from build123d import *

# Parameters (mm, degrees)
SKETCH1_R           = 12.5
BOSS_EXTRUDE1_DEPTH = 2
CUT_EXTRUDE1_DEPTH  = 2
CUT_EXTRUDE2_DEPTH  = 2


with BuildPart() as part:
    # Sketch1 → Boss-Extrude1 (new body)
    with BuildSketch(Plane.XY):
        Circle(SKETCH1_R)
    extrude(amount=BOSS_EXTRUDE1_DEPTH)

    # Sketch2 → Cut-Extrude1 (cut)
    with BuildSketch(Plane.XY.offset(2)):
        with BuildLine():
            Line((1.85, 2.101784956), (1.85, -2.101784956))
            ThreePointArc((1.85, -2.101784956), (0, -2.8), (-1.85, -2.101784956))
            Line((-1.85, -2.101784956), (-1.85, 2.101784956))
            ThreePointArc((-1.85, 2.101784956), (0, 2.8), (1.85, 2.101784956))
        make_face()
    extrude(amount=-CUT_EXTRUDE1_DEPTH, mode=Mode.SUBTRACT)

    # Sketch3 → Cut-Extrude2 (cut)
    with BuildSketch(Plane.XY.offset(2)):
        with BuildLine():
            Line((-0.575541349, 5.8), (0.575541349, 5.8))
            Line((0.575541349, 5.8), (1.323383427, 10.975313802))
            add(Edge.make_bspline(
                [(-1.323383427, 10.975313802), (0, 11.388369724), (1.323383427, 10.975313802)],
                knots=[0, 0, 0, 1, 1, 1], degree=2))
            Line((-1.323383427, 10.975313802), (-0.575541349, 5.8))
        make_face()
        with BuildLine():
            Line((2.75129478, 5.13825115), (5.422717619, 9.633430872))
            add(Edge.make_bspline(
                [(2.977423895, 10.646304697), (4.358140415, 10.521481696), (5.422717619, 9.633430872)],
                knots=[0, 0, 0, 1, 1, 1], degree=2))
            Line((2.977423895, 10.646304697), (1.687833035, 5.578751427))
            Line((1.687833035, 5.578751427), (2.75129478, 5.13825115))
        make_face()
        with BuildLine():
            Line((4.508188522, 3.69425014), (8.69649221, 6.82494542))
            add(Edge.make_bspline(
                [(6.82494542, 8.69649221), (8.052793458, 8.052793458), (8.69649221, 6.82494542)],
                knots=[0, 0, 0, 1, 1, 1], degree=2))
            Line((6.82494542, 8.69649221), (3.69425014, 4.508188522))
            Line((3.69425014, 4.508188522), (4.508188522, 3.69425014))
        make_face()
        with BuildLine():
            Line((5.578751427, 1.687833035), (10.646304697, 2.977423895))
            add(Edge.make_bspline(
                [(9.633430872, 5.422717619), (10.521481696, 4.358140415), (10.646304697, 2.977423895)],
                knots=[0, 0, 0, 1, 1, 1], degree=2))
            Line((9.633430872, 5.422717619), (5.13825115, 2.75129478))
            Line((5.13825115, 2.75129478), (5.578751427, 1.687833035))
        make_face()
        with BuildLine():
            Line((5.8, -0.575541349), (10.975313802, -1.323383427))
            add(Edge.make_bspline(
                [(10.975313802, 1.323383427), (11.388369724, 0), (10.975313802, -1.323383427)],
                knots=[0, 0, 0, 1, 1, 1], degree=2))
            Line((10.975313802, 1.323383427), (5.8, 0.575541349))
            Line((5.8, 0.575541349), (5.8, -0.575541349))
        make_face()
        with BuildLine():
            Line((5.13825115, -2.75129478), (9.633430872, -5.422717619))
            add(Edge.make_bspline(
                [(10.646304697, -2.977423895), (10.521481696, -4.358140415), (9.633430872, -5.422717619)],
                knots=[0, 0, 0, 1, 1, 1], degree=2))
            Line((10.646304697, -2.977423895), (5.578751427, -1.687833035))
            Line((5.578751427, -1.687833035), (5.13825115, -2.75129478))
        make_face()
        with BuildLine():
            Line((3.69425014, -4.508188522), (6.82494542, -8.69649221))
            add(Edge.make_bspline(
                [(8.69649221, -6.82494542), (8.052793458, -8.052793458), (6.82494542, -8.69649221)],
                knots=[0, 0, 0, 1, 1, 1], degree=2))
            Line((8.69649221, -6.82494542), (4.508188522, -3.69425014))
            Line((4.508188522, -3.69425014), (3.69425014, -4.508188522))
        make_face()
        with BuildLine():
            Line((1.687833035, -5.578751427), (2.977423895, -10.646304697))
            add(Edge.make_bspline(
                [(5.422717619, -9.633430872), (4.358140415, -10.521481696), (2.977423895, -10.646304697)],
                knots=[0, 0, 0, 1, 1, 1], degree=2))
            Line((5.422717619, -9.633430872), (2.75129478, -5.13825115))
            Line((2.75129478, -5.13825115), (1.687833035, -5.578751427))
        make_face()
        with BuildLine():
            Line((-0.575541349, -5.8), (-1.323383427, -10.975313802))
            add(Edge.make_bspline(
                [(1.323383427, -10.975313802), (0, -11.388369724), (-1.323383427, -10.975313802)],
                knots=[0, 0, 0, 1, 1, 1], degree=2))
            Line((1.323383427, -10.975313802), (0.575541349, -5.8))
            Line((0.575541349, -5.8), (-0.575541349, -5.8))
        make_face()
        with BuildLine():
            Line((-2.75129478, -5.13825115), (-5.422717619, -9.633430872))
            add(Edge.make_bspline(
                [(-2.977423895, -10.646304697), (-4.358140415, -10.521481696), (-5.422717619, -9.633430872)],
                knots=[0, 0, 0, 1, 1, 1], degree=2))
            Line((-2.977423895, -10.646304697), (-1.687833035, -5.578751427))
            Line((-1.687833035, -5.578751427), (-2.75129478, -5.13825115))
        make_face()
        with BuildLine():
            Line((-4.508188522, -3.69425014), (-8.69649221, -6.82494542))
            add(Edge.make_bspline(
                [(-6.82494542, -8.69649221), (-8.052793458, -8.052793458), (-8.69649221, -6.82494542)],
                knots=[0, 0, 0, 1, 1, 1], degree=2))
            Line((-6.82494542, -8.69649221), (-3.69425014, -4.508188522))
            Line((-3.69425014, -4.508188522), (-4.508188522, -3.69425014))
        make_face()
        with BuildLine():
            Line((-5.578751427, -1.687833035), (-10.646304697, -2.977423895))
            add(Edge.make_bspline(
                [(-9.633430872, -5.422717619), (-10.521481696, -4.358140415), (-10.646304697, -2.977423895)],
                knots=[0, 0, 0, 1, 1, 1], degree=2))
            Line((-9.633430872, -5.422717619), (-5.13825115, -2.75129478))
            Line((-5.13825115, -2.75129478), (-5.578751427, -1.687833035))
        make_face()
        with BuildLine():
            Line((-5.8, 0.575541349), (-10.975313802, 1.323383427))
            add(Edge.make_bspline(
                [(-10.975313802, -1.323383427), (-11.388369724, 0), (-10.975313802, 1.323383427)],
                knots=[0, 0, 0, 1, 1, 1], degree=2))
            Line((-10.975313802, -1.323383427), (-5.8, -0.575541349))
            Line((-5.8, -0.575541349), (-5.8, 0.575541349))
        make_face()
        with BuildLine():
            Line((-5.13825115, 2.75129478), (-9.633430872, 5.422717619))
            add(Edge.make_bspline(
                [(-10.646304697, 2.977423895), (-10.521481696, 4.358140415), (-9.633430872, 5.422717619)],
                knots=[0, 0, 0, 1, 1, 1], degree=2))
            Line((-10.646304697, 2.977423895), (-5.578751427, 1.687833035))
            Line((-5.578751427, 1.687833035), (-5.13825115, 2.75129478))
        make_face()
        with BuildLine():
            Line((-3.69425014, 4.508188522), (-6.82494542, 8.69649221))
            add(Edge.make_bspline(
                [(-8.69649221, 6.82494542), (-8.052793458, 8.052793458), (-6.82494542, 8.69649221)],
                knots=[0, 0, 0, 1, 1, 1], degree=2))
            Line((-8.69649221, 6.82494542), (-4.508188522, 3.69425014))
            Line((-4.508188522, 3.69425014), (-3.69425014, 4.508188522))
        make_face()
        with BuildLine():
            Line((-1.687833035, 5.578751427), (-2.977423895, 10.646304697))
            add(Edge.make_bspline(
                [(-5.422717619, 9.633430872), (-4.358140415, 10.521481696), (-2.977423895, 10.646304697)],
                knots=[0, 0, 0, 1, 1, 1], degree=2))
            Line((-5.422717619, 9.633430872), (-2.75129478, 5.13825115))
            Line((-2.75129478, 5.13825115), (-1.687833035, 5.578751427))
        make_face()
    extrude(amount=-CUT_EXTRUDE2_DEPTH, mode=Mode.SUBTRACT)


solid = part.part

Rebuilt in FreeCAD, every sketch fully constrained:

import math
import FreeCAD as App
import Part
import Sketcher
from FreeCAD import Vector

doc = App.newDocument("Part")
body = doc.addObject("PartDesign::Body", "Body")

# Sketch on XY plane
sketch1 = doc.addObject("Sketcher::SketchObject", "Sketch")
body.addObject(sketch1)
sketch1.AttachmentSupport = (doc.XY_Plane, [""])
sketch1.MapMode = "FlatFace"
sketch1.addGeometry(Part.Circle(Vector(0, 0, 0), Vector(0, 0, 1), 12), False)
sketch1.addConstraint([
    Sketcher.Constraint("Coincident", 0, 3, -1, 1),
    Sketcher.Constraint("Diameter", 0, 25.0),
])
pad1 = doc.addObject("PartDesign::Pad", "Pad")
body.addObject(pad1)
pad1.Profile = sketch1
pad1.Length = 2

# Sketch on XY plane
sketch2 = doc.addObject("Sketcher::SketchObject", "Sketch001")
body.addObject(sketch2)
sketch2.AttachmentSupport = (doc.XY_Plane, [""])
sketch2.MapMode = "FlatFace"
sketch2.AttachmentOffset = App.Placement(Vector(0, 0, 2), App.Rotation())
sketch2.addGeometry([
    Part.LineSegment(Vector(1.9, -2.1, 0), Vector(1.9, 2.1, 0)),
    Part.ArcOfCircle(Part.Circle(Vector(0, 0, 0), Vector(0, 0, 1), 2.8), math.radians(49), math.radians(131)),
    Part.LineSegment(Vector(-1.9, 2.1, 0), Vector(-1.9, -2.1, 0)),
    Part.ArcOfCircle(Part.Circle(Vector(0, 0, 0), Vector(0, 0, 1), 2.8), math.radians(-131), math.radians(-49)),
], False)
sketch2.addConstraint([
    Sketcher.Constraint("Coincident", 0, 2, 1, 1),
    Sketcher.Constraint("Coincident", 1, 2, 2, 1),
    Sketcher.Constraint("Coincident", 2, 2, 3, 1),
    Sketcher.Constraint("Coincident", 3, 2, 0, 1),
    Sketcher.Constraint("Vertical", 0),
    Sketcher.Constraint("Vertical", 2),
    Sketcher.Constraint("Coincident", 1, 3, -1, 1),
    Sketcher.Constraint("Coincident", 3, 3, -1, 1),
    Sketcher.Constraint("Equal", 1, 3),
    Sketcher.Constraint("Horizontal", 0, 2, 1, 2),
    Sketcher.Constraint("Radius", 1, 2.8),
    Sketcher.Constraint("DistanceX", 1, 2, 0, 2, 3.7),
])
pocket1 = doc.addObject("PartDesign::Pocket", "Pocket")
body.addObject(pocket1)
pocket1.Profile = sketch2
pocket1.Length = 2

# Sketch on XY plane
sketch3 = doc.addObject("Sketcher::SketchObject", "Sketch002")
body.addObject(sketch3)
sketch3.AttachmentSupport = (doc.XY_Plane, [""])
sketch3.MapMode = "FlatFace"
sketch3.AttachmentOffset = App.Placement(Vector(0, 0, 2), App.Rotation())
sketch3.addGeometry([
    Part.LineSegment(Vector(-0.575541, 5.8, 0), Vector(0.575541, 5.8, 0)),  # 0
    Part.LineSegment(Vector(0.575541, 5.8, 0), Vector(1.323383, 10.975314, 0)),  # 1
    Part.BSplineCurve([Vector(-1.323383, 10.975314, 0), Vector(0, 11.38837, 0), Vector(1.323383, 10.975314, 0)], [3, 3], [0, 1], False, 2, [1, 1, 1], False),  # 2
    Part.LineSegment(Vector(-1.323383, 10.975314, 0), Vector(-0.575541, 5.8, 0)),  # 3
    Part.LineSegment(Vector(2.751295, 5.138251, 0), Vector(5.422718, 9.633431, 0)),  # 4
    Part.BSplineCurve([Vector(2.977424, 10.646305, 0), Vector(4.35814, 10.521482, 0), Vector(5.422718, 9.633431, 0)], [3, 3], [0, 1], False, 2, [1, 1, 1], False),  # 5
    Part.LineSegment(Vector(2.977424, 10.646305, 0), Vector(1.687833, 5.578751, 0)),  # 6
    Part.LineSegment(Vector(1.687833, 5.578751, 0), Vector(2.751295, 5.138251, 0)),  # 7
    Part.LineSegment(Vector(4.508189, 3.69425, 0), Vector(8.696492, 6.824945, 0)),  # 8
    Part.BSplineCurve([Vector(6.824945, 8.696492, 0), Vector(8.052793, 8.052793, 0), Vector(8.696492, 6.824945, 0)], [3, 3], [0, 1], False, 2, [1, 1, 1], False),  # 9
    Part.LineSegment(Vector(6.824945, 8.696492, 0), Vector(3.69425, 4.508189, 0)),  # 10
    Part.LineSegment(Vector(3.69425, 4.508189, 0), Vector(4.508189, 3.69425, 0)),  # 11
    Part.LineSegment(Vector(5.578751, 1.687833, 0), Vector(10.646305, 2.977424, 0)),  # 12
    Part.BSplineCurve([Vector(9.633431, 5.422718, 0), Vector(10.521482, 4.35814, 0), Vector(10.646305, 2.977424, 0)], [3, 3], [0, 1], False, 2, [1, 1, 1], False),  # 13
    Part.LineSegment(Vector(9.633431, 5.422718, 0), Vector(5.138251, 2.751295, 0)),  # 14
    Part.LineSegment(Vector(5.138251, 2.751295, 0), Vector(5.578751, 1.687833, 0)),  # 15
    Part.LineSegment(Vector(5.8, -0.575541, 0), Vector(10.975314, -1.323383, 0)),  # 16
    Part.BSplineCurve([Vector(10.975314, 1.323383, 0), Vector(11.38837, 0, 0), Vector(10.975314, -1.323383, 0)], [3, 3], [0, 1], False, 2, [1, 1, 1], False),  # 17
    Part.LineSegment(Vector(10.975314, 1.323383, 0), Vector(5.8, 0.575541, 0)),  # 18
    Part.LineSegment(Vector(5.8, 0.575541, 0), Vector(5.8, -0.575541, 0)),  # 19
    Part.LineSegment(Vector(5.138251, -2.751295, 0), Vector(9.633431, -5.422718, 0)),  # 20
    Part.BSplineCurve([Vector(10.646305, -2.977424, 0), Vector(10.521482, -4.35814, 0), Vector(9.633431, -5.422718, 0)], [3, 3], [0, 1], False, 2, [1, 1, 1], False),  # 21
    Part.LineSegment(Vector(10.646305, -2.977424, 0), Vector(5.578751, -1.687833, 0)),  # 22
    Part.LineSegment(Vector(5.578751, -1.687833, 0), Vector(5.138251, -2.751295, 0)),  # 23
    Part.LineSegment(Vector(3.69425, -4.508189, 0), Vector(6.824945, -8.696492, 0)),  # 24
    Part.BSplineCurve([Vector(8.696492, -6.824945, 0), Vector(8.052793, -8.052793, 0), Vector(6.824945, -8.696492, 0)], [3, 3], [0, 1], False, 2, [1, 1, 1], False),  # 25
    Part.LineSegment(Vector(8.696492, -6.824945, 0), Vector(4.508189, -3.69425, 0)),  # 26
    Part.LineSegment(Vector(4.508189, -3.69425, 0), Vector(3.69425, -4.508189, 0)),  # 27
    Part.LineSegment(Vector(1.687833, -5.578751, 0), Vector(2.977424, -10.646305, 0)),  # 28
    Part.BSplineCurve([Vector(5.422718, -9.633431, 0), Vector(4.35814, -10.521482, 0), Vector(2.977424, -10.646305, 0)], [3, 3], [0, 1], False, 2, [1, 1, 1], False),  # 29
    Part.LineSegment(Vector(5.422718, -9.633431, 0), Vector(2.751295, -5.138251, 0)),  # 30
    Part.LineSegment(Vector(2.751295, -5.138251, 0), Vector(1.687833, -5.578751, 0)),  # 31
    Part.LineSegment(Vector(-0.575541, -5.8, 0), Vector(-1.323383, -10.975314, 0)),  # 32
    Part.BSplineCurve([Vector(1.323383, -10.975314, 0), Vector(0, -11.38837, 0), Vector(-1.323383, -10.975314, 0)], [3, 3], [0, 1], False, 2, [1, 1, 1], False),  # 33
    Part.LineSegment(Vector(1.323383, -10.975314, 0), Vector(0.575541, -5.8, 0)),  # 34
    Part.LineSegment(Vector(0.575541, -5.8, 0), Vector(-0.575541, -5.8, 0)),  # 35
    Part.LineSegment(Vector(-2.751295, -5.138251, 0), Vector(-5.422718, -9.633431, 0)),  # 36
    Part.BSplineCurve([Vector(-2.977424, -10.646305, 0), Vector(-4.35814, -10.521482, 0), Vector(-5.422718, -9.633431, 0)], [3, 3], [0, 1], False, 2, [1, 1, 1], False),  # 37
    Part.LineSegment(Vector(-2.977424, -10.646305, 0), Vector(-1.687833, -5.578751, 0)),  # 38
    Part.LineSegment(Vector(-1.687833, -5.578751, 0), Vector(-2.751295, -5.138251, 0)),  # 39
    Part.LineSegment(Vector(-4.508189, -3.69425, 0), Vector(-8.696492, -6.824945, 0)),  # 40
    Part.BSplineCurve([Vector(-6.824945, -8.696492, 0), Vector(-8.052793, -8.052793, 0), Vector(-8.696492, -6.824945, 0)], [3, 3], [0, 1], False, 2, [1, 1, 1], False),  # 41
    Part.LineSegment(Vector(-6.824945, -8.696492, 0), Vector(-3.69425, -4.508189, 0)),  # 42
    Part.LineSegment(Vector(-3.69425, -4.508189, 0), Vector(-4.508189, -3.69425, 0)),  # 43
    Part.LineSegment(Vector(-5.578751, -1.687833, 0), Vector(-10.646305, -2.977424, 0)),  # 44
    Part.BSplineCurve([Vector(-9.633431, -5.422718, 0), Vector(-10.521482, -4.35814, 0), Vector(-10.646305, -2.977424, 0)], [3, 3], [0, 1], False, 2, [1, 1, 1], False),  # 45
    Part.LineSegment(Vector(-9.633431, -5.422718, 0), Vector(-5.138251, -2.751295, 0)),  # 46
    Part.LineSegment(Vector(-5.138251, -2.751295, 0), Vector(-5.578751, -1.687833, 0)),  # 47
    Part.LineSegment(Vector(-5.8, 0.575541, 0), Vector(-10.975314, 1.323383, 0)),  # 48
    Part.BSplineCurve([Vector(-10.975314, -1.323383, 0), Vector(-11.38837, 0, 0), Vector(-10.975314, 1.323383, 0)], [3, 3], [0, 1], False, 2, [1, 1, 1], False),  # 49
    Part.LineSegment(Vector(-10.975314, -1.323383, 0), Vector(-5.8, -0.575541, 0)),  # 50
    Part.LineSegment(Vector(-5.8, -0.575541, 0), Vector(-5.8, 0.575541, 0)),  # 51
    Part.LineSegment(Vector(-5.138251, 2.751295, 0), Vector(-9.633431, 5.422718, 0)),  # 52
    Part.BSplineCurve([Vector(-10.646305, 2.977424, 0), Vector(-10.521482, 4.35814, 0), Vector(-9.633431, 5.422718, 0)], [3, 3], [0, 1], False, 2, [1, 1, 1], False),  # 53
    Part.LineSegment(Vector(-10.646305, 2.977424, 0), Vector(-5.578751, 1.687833, 0)),  # 54
    Part.LineSegment(Vector(-5.578751, 1.687833, 0), Vector(-5.138251, 2.751295, 0)),  # 55
    Part.LineSegment(Vector(-3.69425, 4.508189, 0), Vector(-6.824945, 8.696492, 0)),  # 56
    Part.BSplineCurve([Vector(-8.696492, 6.824945, 0), Vector(-8.052793, 8.052793, 0), Vector(-6.824945, 8.696492, 0)], [3, 3], [0, 1], False, 2, [1, 1, 1], False),  # 57
    Part.LineSegment(Vector(-8.696492, 6.824945, 0), Vector(-4.508189, 3.69425, 0)),  # 58
    Part.LineSegment(Vector(-4.508189, 3.69425, 0), Vector(-3.69425, 4.508189, 0)),  # 59
    Part.LineSegment(Vector(-1.687833, 5.578751, 0), Vector(-2.977424, 10.646305, 0)),  # 60
    Part.BSplineCurve([Vector(-5.422718, 9.633431, 0), Vector(-4.35814, 10.521482, 0), Vector(-2.977424, 10.646305, 0)], [3, 3], [0, 1], False, 2, [1, 1, 1], False),  # 61
    Part.LineSegment(Vector(-5.422718, 9.633431, 0), Vector(-2.751295, 5.138251, 0)),  # 62
    Part.LineSegment(Vector(-2.751295, 5.138251, 0), Vector(-1.687833, 5.578751, 0)),  # 63
], False)
sketch3.addConstraint([
    Sketcher.Constraint("Block", 2),
    Sketcher.Constraint("Block", 5),
    Sketcher.Constraint("Block", 9),
    Sketcher.Constraint("Block", 13),
    Sketcher.Constraint("Block", 17),
    Sketcher.Constraint("Block", 21),
    Sketcher.Constraint("Block", 25),
    Sketcher.Constraint("Block", 29),
    Sketcher.Constraint("Block", 33),
    Sketcher.Constraint("Block", 37),
    Sketcher.Constraint("Block", 41),
    Sketcher.Constraint("Block", 45),
    Sketcher.Constraint("Block", 49),
    Sketcher.Constraint("Block", 53),
    Sketcher.Constraint("Block", 57),
    Sketcher.Constraint("Block", 61),
    Sketcher.Constraint("Coincident", 0, 2, 1, 1),
    Sketcher.Constraint("Coincident", 1, 2, 2, 2),
    Sketcher.Constraint("Coincident", 2, 1, 3, 1),
    Sketcher.Constraint("Coincident", 3, 2, 0, 1),
    Sketcher.Constraint("Coincident", 4, 2, 5, 2),
    Sketcher.Constraint("Coincident", 5, 1, 6, 1),
    Sketcher.Constraint("Coincident", 6, 2, 7, 1),
    Sketcher.Constraint("Coincident", 7, 2, 4, 1),
    Sketcher.Constraint("Coincident", 8, 2, 9, 2),
    Sketcher.Constraint("Coincident", 9, 1, 10, 1),
    Sketcher.Constraint("Coincident", 10, 2, 11, 1),
    Sketcher.Constraint("Coincident", 11, 2, 8, 1),
    Sketcher.Constraint("Coincident", 12, 2, 13, 2),
    Sketcher.Constraint("Coincident", 13, 1, 14, 1),
    Sketcher.Constraint("Coincident", 14, 2, 15, 1),
    Sketcher.Constraint("Coincident", 15, 2, 12, 1),
    Sketcher.Constraint("Coincident", 16, 2, 17, 2),
    Sketcher.Constraint("Coincident", 17, 1, 18, 1),
    Sketcher.Constraint("Coincident", 18, 2, 19, 1),
    Sketcher.Constraint("Coincident", 19, 2, 16, 1),
    Sketcher.Constraint("Coincident", 20, 2, 21, 2),
    Sketcher.Constraint("Coincident", 21, 1, 22, 1),
    Sketcher.Constraint("Coincident", 22, 2, 23, 1),
    Sketcher.Constraint("Coincident", 23, 2, 20, 1),
    Sketcher.Constraint("Coincident", 24, 2, 25, 2),
    Sketcher.Constraint("Coincident", 25, 1, 26, 1),
    Sketcher.Constraint("Coincident", 26, 2, 27, 1),
    Sketcher.Constraint("Coincident", 27, 2, 24, 1),
    Sketcher.Constraint("Coincident", 28, 2, 29, 2),
    Sketcher.Constraint("Coincident", 29, 1, 30, 1),
    Sketcher.Constraint("Coincident", 30, 2, 31, 1),
    Sketcher.Constraint("Coincident", 31, 2, 28, 1),
    Sketcher.Constraint("Coincident", 32, 2, 33, 2),
    Sketcher.Constraint("Coincident", 33, 1, 34, 1),
    Sketcher.Constraint("Coincident", 34, 2, 35, 1),
    Sketcher.Constraint("Coincident", 35, 2, 32, 1),
    Sketcher.Constraint("Coincident", 36, 2, 37, 2),
    Sketcher.Constraint("Coincident", 37, 1, 38, 1),
    Sketcher.Constraint("Coincident", 38, 2, 39, 1),
    Sketcher.Constraint("Coincident", 39, 2, 36, 1),
    Sketcher.Constraint("Coincident", 40, 2, 41, 2),
    Sketcher.Constraint("Coincident", 41, 1, 42, 1),
    Sketcher.Constraint("Coincident", 42, 2, 43, 1),
    Sketcher.Constraint("Coincident", 43, 2, 40, 1),
    Sketcher.Constraint("Coincident", 44, 2, 45, 2),
    Sketcher.Constraint("Coincident", 45, 1, 46, 1),
    Sketcher.Constraint("Coincident", 46, 2, 47, 1),
    Sketcher.Constraint("Coincident", 47, 2, 44, 1),
    Sketcher.Constraint("Coincident", 48, 2, 49, 2),
    Sketcher.Constraint("Coincident", 49, 1, 50, 1),
    Sketcher.Constraint("Coincident", 50, 2, 51, 1),
    Sketcher.Constraint("Coincident", 51, 2, 48, 1),
    Sketcher.Constraint("Coincident", 52, 2, 53, 2),
    Sketcher.Constraint("Coincident", 53, 1, 54, 1),
    Sketcher.Constraint("Coincident", 54, 2, 55, 1),
    Sketcher.Constraint("Coincident", 55, 2, 52, 1),
    Sketcher.Constraint("Coincident", 56, 2, 57, 2),
    Sketcher.Constraint("Coincident", 57, 1, 58, 1),
    Sketcher.Constraint("Coincident", 58, 2, 59, 1),
    Sketcher.Constraint("Coincident", 59, 2, 56, 1),
    Sketcher.Constraint("Coincident", 60, 2, 61, 2),
    Sketcher.Constraint("Coincident", 61, 1, 62, 1),
    Sketcher.Constraint("Coincident", 62, 2, 63, 1),
    Sketcher.Constraint("Coincident", 63, 2, 60, 1),
    Sketcher.Constraint("Horizontal", 0),
    Sketcher.Constraint("Vertical", 19),
    Sketcher.Constraint("Horizontal", 35),
    Sketcher.Constraint("Vertical", 51),
    Sketcher.Constraint("DistanceY", -1, 1, 0, 2, 5.8),
    Sketcher.Constraint("DistanceX", -1, 1, 18, 2, 5.8),
    Sketcher.Constraint("DistanceY", 34, 2, -1, 1, 5.8),
    Sketcher.Constraint("DistanceX", 50, 2, -1, 1, 5.8),
    Sketcher.Constraint("DistanceY", 11, 2, 7, 2, 1.444001),
    Sketcher.Constraint("DistanceX", 10, 2, 14, 2, 1.444001),
    Sketcher.Constraint("DistanceX", 27, 2, 23, 2, 1.444001),
    Sketcher.Constraint("DistanceY", 30, 2, 26, 2, 1.444001),
    Sketcher.Constraint("DistanceY", 39, 2, 43, 2, 1.444001),
    Sketcher.Constraint("DistanceX", 46, 2, 42, 2, 1.444001),
    Sketcher.Constraint("DistanceX", 55, 2, 59, 2, 1.444001),
    Sketcher.Constraint("DistanceY", 58, 2, 62, 2, 1.444001),
    Sketcher.Constraint("DistanceY", 7, 2, 6, 2, 0.4405),
    Sketcher.Constraint("DistanceX", 14, 2, 15, 2, 0.4405),
    Sketcher.Constraint("DistanceX", 14, 2, 22, 2, 0.4405),
    Sketcher.Constraint("DistanceX", 23, 2, 22, 2, 0.4405),
    Sketcher.Constraint("DistanceY", 31, 2, 30, 2, 0.4405),
    Sketcher.Constraint("DistanceY", 38, 2, 30, 2, 0.4405),
    Sketcher.Constraint("DistanceY", 38, 2, 39, 2, 0.4405),
    Sketcher.Constraint("DistanceX", 47, 2, 46, 2, 0.4405),
    Sketcher.Constraint("DistanceX", 54, 2, 46, 2, 0.4405),
    Sketcher.Constraint("DistanceX", 54, 2, 55, 2, 0.4405),
    Sketcher.Constraint("DistanceY", 62, 2, 63, 2, 0.4405),
    Sketcher.Constraint("DistanceX", 0, 1, 0, 2, 1.151083),
    Sketcher.Constraint("DistanceX", 35, 2, 35, 1, 1.151083),
    Sketcher.Constraint("DistanceY", 19, 2, 19, 1, 1.151083),
    Sketcher.Constraint("DistanceY", 51, 1, 51, 2, 1.151083),
    Sketcher.Constraint("DistanceX", -1, 1, 0, 2, 0.575541),
    Sketcher.Constraint("DistanceY", -1, 1, 6, 2, 5.578751),
    Sketcher.Constraint("DistanceX", -1, 1, 10, 2, 3.69425),
    Sketcher.Constraint("DistanceY", -1, 1, 10, 2, 4.508189),
    Sketcher.Constraint("DistanceX", -1, 1, 11, 2, 4.508189),
    Sketcher.Constraint("DistanceY", -1, 1, 18, 2, 0.575541),
    Sketcher.Constraint("DistanceX", -1, 1, 26, 2, 4.508189),
    Sketcher.Constraint("DistanceY", 26, 2, -1, 1, 3.69425),
    Sketcher.Constraint("DistanceY", 27, 2, -1, 1, 4.508189),
    Sketcher.Constraint("DistanceX", -1, 1, 34, 2, 0.575541),
    Sketcher.Constraint("DistanceX", 42, 2, -1, 1, 3.69425),
    Sketcher.Constraint("DistanceY", 42, 2, -1, 1, 4.508189),
    Sketcher.Constraint("DistanceX", 43, 2, -1, 1, 4.508189),
    Sketcher.Constraint("DistanceY", 50, 2, -1, 1, 0.575541),
    Sketcher.Constraint("DistanceX", 58, 2, -1, 1, 4.508189),
    Sketcher.Constraint("DistanceY", -1, 1, 58, 2, 3.69425),
    Sketcher.Constraint("DistanceY", -1, 1, 59, 2, 4.508189),
    Sketcher.Constraint("DistanceX", 0, 2, 6, 2, 1.112292),
    Sketcher.Constraint("DistanceX", 6, 2, 7, 2, 1.063462),
    Sketcher.Constraint("DistanceY", 14, 2, 8, 2, 4.073651),
    Sketcher.Constraint("DistanceY", 15, 2, 14, 2, 1.063462),
    Sketcher.Constraint("DistanceY", 22, 2, 19, 2, 1.112292),
    Sketcher.Constraint("DistanceY", 23, 2, 22, 2, 1.063462),
    Sketcher.Constraint("DistanceX", 30, 2, 24, 2, 4.073651),
    Sketcher.Constraint("DistanceX", 31, 2, 30, 2, 1.063462),
    Sketcher.Constraint("DistanceX", 38, 2, 35, 2, 1.112292),
    Sketcher.Constraint("DistanceX", 39, 2, 38, 2, 1.063462),
    Sketcher.Constraint("DistanceY", 40, 2, 46, 2, 4.073651),
    Sketcher.Constraint("DistanceY", 46, 2, 47, 2, 1.063462),
    Sketcher.Constraint("DistanceY", 51, 2, 54, 2, 1.112292),
    Sketcher.Constraint("DistanceY", 54, 2, 55, 2, 1.063462),
    Sketcher.Constraint("DistanceX", 63, 2, 3, 2, 1.112292),
    Sketcher.Constraint("DistanceX", 62, 2, 63, 2, 1.063462),
])
pocket2 = doc.addObject("PartDesign::Pocket", "Pocket001")
body.addObject(pocket2)
pocket2.Profile = sketch3
pocket2.Length = 2

doc.recompute()
